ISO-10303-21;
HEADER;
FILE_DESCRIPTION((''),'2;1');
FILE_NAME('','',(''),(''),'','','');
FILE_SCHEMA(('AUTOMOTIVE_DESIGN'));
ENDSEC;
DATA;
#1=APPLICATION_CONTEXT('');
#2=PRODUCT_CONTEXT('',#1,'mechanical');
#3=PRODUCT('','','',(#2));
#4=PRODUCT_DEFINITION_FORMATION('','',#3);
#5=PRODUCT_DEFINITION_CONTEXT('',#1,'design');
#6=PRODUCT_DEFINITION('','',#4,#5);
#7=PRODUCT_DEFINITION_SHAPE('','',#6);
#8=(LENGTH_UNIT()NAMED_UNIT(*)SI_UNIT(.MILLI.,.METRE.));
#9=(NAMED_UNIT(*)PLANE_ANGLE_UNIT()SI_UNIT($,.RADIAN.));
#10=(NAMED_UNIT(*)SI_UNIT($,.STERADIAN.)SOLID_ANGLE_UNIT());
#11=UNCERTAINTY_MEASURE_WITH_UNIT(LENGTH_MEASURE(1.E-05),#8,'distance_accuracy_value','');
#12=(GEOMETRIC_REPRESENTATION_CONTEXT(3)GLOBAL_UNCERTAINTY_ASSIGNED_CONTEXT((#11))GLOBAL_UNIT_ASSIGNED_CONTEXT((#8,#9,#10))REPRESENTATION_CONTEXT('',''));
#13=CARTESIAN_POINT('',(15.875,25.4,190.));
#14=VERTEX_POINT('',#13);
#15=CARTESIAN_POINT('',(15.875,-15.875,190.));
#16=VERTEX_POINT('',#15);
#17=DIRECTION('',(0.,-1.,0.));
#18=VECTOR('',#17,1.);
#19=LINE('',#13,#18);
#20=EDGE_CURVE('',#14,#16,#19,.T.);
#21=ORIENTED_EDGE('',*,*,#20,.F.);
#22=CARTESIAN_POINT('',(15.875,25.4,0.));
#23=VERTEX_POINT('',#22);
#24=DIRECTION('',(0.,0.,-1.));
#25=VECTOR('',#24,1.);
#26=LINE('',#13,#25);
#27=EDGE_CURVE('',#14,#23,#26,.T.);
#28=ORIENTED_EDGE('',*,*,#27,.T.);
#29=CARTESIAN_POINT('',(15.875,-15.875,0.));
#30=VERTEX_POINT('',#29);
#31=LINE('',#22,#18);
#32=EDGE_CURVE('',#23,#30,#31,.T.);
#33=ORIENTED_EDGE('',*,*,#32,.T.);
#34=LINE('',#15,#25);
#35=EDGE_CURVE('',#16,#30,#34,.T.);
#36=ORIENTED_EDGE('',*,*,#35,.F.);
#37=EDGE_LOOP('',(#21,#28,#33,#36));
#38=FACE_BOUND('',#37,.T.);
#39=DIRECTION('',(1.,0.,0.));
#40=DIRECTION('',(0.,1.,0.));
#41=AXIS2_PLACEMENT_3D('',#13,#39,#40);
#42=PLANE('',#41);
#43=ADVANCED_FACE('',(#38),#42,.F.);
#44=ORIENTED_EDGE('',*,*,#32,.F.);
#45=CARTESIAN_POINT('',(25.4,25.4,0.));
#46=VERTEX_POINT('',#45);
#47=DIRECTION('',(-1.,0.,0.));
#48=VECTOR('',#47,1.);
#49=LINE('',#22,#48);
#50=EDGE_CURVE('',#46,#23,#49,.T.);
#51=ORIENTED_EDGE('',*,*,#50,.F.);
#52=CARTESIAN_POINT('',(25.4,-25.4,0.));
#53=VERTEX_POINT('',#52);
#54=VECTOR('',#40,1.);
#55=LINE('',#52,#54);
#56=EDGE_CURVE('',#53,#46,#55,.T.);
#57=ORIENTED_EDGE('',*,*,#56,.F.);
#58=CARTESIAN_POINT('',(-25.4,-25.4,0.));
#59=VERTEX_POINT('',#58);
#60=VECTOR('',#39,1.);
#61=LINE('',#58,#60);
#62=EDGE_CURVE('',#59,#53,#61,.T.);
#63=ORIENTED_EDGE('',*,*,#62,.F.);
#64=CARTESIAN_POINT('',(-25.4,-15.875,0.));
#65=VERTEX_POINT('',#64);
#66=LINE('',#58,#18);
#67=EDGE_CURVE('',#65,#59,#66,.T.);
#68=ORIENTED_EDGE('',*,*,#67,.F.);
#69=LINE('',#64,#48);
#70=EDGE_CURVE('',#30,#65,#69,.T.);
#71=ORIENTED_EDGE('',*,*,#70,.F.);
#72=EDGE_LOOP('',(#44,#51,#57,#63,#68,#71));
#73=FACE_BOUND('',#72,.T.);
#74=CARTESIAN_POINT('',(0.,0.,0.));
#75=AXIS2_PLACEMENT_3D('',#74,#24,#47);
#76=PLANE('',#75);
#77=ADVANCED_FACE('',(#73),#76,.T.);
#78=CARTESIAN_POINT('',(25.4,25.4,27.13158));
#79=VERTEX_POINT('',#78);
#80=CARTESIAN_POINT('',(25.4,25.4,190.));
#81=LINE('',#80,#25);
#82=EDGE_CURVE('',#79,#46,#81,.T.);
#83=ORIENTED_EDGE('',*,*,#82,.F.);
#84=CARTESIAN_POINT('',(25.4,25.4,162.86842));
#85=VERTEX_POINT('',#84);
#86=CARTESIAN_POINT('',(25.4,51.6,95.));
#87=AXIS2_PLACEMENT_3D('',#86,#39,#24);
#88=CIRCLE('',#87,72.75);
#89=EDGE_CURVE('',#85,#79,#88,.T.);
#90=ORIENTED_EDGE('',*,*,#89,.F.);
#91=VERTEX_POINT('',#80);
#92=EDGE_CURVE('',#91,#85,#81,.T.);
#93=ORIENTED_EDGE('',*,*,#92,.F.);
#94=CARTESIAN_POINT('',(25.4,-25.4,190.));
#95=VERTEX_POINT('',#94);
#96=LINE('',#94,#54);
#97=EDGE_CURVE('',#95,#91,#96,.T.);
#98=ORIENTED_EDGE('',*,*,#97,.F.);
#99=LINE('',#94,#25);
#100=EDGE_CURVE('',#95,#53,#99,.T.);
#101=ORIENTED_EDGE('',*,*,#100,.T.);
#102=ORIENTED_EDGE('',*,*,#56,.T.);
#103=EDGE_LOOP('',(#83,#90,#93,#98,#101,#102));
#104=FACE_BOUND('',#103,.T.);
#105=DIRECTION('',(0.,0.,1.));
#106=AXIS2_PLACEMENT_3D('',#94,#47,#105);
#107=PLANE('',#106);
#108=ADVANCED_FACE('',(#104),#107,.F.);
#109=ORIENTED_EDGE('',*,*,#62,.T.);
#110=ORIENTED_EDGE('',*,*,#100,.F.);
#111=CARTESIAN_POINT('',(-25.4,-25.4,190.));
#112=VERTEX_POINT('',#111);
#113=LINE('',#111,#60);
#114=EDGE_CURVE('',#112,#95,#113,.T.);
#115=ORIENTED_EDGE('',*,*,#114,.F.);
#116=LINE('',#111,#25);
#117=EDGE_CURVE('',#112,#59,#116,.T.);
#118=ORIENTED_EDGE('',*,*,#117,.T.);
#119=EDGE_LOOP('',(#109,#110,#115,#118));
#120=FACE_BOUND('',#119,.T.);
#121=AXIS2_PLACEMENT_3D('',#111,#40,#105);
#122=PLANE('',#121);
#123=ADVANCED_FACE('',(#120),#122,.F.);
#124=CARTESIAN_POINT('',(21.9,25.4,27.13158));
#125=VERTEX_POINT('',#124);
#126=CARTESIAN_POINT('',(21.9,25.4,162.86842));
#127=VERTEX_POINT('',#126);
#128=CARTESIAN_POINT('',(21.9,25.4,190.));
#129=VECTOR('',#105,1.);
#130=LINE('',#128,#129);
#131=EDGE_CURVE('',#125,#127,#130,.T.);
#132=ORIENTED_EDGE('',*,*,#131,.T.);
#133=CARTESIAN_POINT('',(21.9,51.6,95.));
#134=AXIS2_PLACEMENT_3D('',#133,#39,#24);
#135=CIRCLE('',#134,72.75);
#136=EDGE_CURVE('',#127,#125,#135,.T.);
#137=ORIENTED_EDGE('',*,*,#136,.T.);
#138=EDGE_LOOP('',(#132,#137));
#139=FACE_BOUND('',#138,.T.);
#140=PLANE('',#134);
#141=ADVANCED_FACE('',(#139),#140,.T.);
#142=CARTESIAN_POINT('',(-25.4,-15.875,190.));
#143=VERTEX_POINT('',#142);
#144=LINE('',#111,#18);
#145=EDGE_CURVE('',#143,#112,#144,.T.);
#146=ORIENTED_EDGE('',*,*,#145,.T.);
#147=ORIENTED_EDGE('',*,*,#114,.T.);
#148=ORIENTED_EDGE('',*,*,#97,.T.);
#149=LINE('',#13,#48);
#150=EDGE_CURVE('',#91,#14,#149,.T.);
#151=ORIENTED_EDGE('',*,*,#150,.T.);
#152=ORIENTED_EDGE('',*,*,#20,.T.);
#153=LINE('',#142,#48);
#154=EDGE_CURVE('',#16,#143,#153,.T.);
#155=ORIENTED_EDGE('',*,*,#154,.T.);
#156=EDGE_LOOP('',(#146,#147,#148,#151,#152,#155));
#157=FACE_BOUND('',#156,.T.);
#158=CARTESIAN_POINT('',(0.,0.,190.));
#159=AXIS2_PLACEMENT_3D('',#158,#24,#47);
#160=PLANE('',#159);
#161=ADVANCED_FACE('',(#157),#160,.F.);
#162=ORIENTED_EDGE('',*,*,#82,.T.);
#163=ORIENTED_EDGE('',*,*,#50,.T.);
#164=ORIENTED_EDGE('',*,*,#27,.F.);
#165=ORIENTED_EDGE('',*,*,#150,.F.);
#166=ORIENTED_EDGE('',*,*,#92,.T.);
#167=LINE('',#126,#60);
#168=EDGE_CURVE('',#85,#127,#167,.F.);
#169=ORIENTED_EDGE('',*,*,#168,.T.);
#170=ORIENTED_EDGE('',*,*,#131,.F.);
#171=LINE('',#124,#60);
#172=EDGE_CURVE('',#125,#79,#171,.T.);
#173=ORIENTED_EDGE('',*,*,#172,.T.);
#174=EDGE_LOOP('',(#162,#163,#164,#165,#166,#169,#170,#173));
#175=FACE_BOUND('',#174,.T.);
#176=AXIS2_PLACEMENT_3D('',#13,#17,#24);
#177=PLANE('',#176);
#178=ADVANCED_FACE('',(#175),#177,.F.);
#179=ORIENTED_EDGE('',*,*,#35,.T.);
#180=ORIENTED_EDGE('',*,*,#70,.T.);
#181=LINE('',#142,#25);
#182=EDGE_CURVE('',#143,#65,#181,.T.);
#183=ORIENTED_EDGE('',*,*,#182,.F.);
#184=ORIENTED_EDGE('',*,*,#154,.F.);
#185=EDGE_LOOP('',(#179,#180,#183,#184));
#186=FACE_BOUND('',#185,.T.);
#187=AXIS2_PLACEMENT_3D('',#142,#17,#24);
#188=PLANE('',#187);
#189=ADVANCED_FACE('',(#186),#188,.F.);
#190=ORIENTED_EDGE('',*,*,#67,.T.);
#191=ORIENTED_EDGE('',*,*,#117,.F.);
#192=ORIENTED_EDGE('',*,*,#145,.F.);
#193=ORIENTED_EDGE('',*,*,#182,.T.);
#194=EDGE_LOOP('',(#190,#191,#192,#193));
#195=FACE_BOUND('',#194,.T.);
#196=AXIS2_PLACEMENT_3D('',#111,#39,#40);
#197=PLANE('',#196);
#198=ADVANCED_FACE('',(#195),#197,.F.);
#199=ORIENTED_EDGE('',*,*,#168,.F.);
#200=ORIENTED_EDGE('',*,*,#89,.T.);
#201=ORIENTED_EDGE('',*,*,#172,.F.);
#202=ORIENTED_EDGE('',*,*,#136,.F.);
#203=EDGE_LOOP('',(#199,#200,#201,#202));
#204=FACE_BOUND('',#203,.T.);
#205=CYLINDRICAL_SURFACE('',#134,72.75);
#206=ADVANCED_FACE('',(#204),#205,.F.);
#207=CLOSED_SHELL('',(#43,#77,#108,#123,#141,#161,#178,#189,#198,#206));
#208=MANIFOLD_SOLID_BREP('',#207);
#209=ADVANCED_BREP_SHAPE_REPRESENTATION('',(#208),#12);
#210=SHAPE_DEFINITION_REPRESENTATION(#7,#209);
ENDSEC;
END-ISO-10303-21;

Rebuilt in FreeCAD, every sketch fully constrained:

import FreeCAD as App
import Part
import Sketcher


def add_polygon(sketch, points):
    """Adds a closed chain of lines whose ends are joined by coincident constraints."""
    first, n = sketch.GeometryCount, len(points)
    for a, b in zip(points, points[1:] + points[:1]):
        sketch.addGeometry(Part.LineSegment(App.Vector(*a, 0), App.Vector(*b, 0)), False)
    for i in range(n):
        sketch.addConstraint(Sketcher.Constraint("Coincident", first + i, 2, first + (i + 1) % n, 1))

doc = App.newDocument("Part")
body = doc.addObject("PartDesign::Body", "Body")

sketch1 = doc.addObject("Sketcher::SketchObject", "Sketch")
body.addObject(sketch1)
sketch1.AttachmentSupport = (doc.XY_Plane, [""])
sketch1.MapMode = "FlatFace"
add_polygon(sketch1, [(-25.4, -25.4), (25.4, -25.4), (25.4, 25.4), (15.875, 25.4), (15.875, -15.875), (-25.4, -15.875)])
sketch1.addConstraint(Sketcher.Constraint("Horizontal", 0))
sketch1.addConstraint(Sketcher.Constraint("Vertical", 1))
sketch1.addConstraint(Sketcher.Constraint("Horizontal", 2))
sketch1.addConstraint(Sketcher.Constraint("Vertical", 3))
sketch1.addConstraint(Sketcher.Constraint("Horizontal", 4))
sketch1.addConstraint(Sketcher.Constraint("Vertical", 5))
sketch1.addConstraint(Sketcher.Constraint("Symmetric", 1, 2, 5, 2, -1, 1))
sketch1.addConstraint(Sketcher.Constraint("Equal", 0, 1))
sketch1.addConstraint(Sketcher.Constraint("Equal", 4, 3))
sketch1.addConstraint(Sketcher.Constraint("DistanceX", 0, 1, 0, 2, 50.8))
sketch1.addConstraint(Sketcher.Constraint("DistanceX", 2, 2, 2, 1, 9.525))
pad1 = doc.addObject("PartDesign::Pad", "Pad")
body.addObject(pad1)
pad1.Profile = sketch1
pad1.Length = 190

sketch2 = doc.addObject("Sketcher::SketchObject", "Sketch001")
body.addObject(sketch2)
sketch2.AttachmentSupport = (doc.YZ_Plane, [""])
sketch2.MapMode = "FlatFace"
sketch2.AttachmentOffset = App.Placement(App.Vector(0, 0, 25.4), App.Rotation())
sketch2.addGeometry(Part.Circle(App.Vector(51.6, 95, 0), App.Vector(0, 0, 1), 72.75), False)
sketch2.addConstraint(Sketcher.Constraint("Diameter", 0, 145.5))
sketch2.addConstraint(Sketcher.Constraint("DistanceY", -1, 1, 0, 3, 95.0))
sketch2.addConstraint(Sketcher.Constraint("DistanceX", -1, 1, 0, 3, 51.6))
pocket1 = doc.addObject("PartDesign::Pocket", "Pocket")
body.addObject(pocket1)
pocket1.Profile = sketch2
pocket1.Length = 3.5

doc.recompute()
